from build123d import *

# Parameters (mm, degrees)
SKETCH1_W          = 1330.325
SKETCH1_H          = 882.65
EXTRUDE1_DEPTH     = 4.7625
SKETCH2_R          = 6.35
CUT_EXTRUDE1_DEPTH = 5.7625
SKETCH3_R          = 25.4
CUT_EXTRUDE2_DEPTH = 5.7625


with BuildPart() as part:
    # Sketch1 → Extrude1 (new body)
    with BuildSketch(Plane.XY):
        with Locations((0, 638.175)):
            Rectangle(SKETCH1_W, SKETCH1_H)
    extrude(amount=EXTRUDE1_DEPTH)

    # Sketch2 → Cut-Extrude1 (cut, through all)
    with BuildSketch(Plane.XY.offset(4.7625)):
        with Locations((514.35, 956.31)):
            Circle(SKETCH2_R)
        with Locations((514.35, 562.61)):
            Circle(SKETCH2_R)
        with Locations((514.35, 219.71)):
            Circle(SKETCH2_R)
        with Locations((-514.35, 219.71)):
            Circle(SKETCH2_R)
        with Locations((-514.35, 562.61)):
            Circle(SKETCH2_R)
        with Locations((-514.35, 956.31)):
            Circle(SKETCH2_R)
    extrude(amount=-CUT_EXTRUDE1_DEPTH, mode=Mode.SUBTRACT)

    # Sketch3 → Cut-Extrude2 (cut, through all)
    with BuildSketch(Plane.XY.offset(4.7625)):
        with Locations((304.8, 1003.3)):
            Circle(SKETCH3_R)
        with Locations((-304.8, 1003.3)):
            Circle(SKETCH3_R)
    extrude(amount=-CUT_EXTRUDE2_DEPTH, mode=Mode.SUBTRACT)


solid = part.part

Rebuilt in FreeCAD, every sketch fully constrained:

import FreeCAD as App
import Part
import Sketcher
from FreeCAD import Vector
Q = App.Units.Quantity


def add_polygon(sketch, points):
    """Adds a closed chain of lines whose ends are joined by coincident constraints."""
    first, n = sketch.GeometryCount, len(points)
    for a, b in zip(points, points[1:] + points[:1]):
        sketch.addGeometry(Part.LineSegment(App.Vector(*a, 0), App.Vector(*b, 0)), False)
    for i in range(n):
        sketch.addConstraint(Sketcher.Constraint("Coincident", first + i, 2, first + (i + 1) % n, 1))

doc = App.newDocument("Part")
params = doc.addObject("Spreadsheet::Sheet", "Params")
for row, (alias, value) in enumerate([
    ("sketch1_height", "34.75 in"),
    ("sketch1_width", "52.375 in"),
    ("pad1_length", "0.1875 in"),
    ("sketch2_diameter", "0.5 in"),
    ("sketch3_diameter", "2 in"),
], start=1):
    params.set(f"A{row}", alias)
    params.set(f"B{row}", "=" + value)
    params.setAlias(f"B{row}", alias)

body = doc.addObject("PartDesign::Body", "Body")

sketch1 = body.newObject("Sketcher::SketchObject", "Sketch")
sketch1.AttachmentSupport = (doc.getObject("XY_Plane"), [""])
sketch1.MapMode = "FlatFace"
add_polygon(sketch1, [(-665.1625, 1079.5), (-665.1625, 196.85), (665.1625, 196.85), (665.1625, 1079.5)])
sketch1.addConstraint([
    Sketcher.Constraint("Vertical", 0),
    Sketcher.Constraint("Horizontal", 1),
    Sketcher.Constraint("Vertical", 2),
    Sketcher.Constraint("Horizontal", 3),
    Sketcher.Constraint("DistanceY", 0, 2, 0, 1, Q("34.75 in")),
    Sketcher.Constraint("DistanceY", -1, 1, 2, 2, Q("42.5 in")),
    Sketcher.Constraint("DistanceX", 1, 1, 1, 2, Q("52.375 in")),
    Sketcher.Constraint("DistanceX", 0, 2, -1, 1, Q("26.1875 in")),
])
sketch1.setExpression("Constraints[8]", "Params.sketch1_height")
sketch1.setExpression("Constraints[10]", "Params.sketch1_width")
pad1 = body.newObject("PartDesign::Pad", "Pad")
pad1.Profile = sketch1
pad1.setExpression("Length", "Params.pad1_length")

sketch2 = body.newObject("Sketcher::SketchObject", "Sketch001")
sketch2.AttachmentSupport = (doc.getObject("XY_Plane"), [""])
sketch2.MapMode = "FlatFace"
sketch2.AttachmentOffset = App.Placement(Vector(0, 0, 0.1875 * 25.4), App.Rotation())
sketch2.addGeometry([
    Part.Circle(Vector(514.35, 956.31, 0), Vector(0, 0, 1), 6.35),
    Part.Circle(Vector(514.35, 562.61, 0), Vector(0, 0, 1), 6.35),
    Part.Circle(Vector(514.35, 219.71, 0), Vector(0, 0, 1), 6.35),
    Part.Circle(Vector(-514.35, 219.71, 0), Vector(0, 0, 1), 6.35),
    Part.Circle(Vector(-514.35, 562.61, 0), Vector(0, 0, 1), 6.35),
    Part.Circle(Vector(-514.35, 956.31, 0), Vector(0, 0, 1), 6.35),
], False)
sketch2.addConstraint([
    Sketcher.Constraint("Equal", 0, 1),
    Sketcher.Constraint("Equal", 1, 2),
    Sketcher.Constraint("Equal", 2, 3),
    Sketcher.Constraint("Equal", 3, 4),
    Sketcher.Constraint("Equal", 4, 5),
    Sketcher.Constraint("Symmetric", 2, 3, 3, 3, -2),
    Sketcher.Constraint("Symmetric", 1, 3, 4, 3, -2),
    Sketcher.Constraint("Symmetric", 0, 3, 5, 3, -2),
    Sketcher.Constraint("Vertical", 0, 3, 1, 3),
    Sketcher.Constraint("Vertical", 1, 3, 2, 3),
    Sketcher.Constraint("Diameter", 0, Q("0.5 in")),
    Sketcher.Constraint("DistanceY", 2, 3, 0, 3, Q("29 in")),
    Sketcher.Constraint("DistanceY", 1, 3, 0, 3, Q("15.5 in")),
    Sketcher.Constraint("DistanceX", 3, 3, 2, 3, Q("40.5 in")),
    Sketcher.Constraint("DistanceY", -1, 1, 0, 3, Q("37.65 in")),
])
sketch2.setExpression("Constraints[10]", "Params.sketch2_diameter")
pocket1 = body.newObject("PartDesign::Pocket", "Pocket")
pocket1.Profile = sketch2
pocket1.Type = "ThroughAll"

sketch3 = body.newObject("Sketcher::SketchObject", "Sketch002")
sketch3.AttachmentSupport = (doc.getObject("XY_Plane"), [""])
sketch3.MapMode = "FlatFace"
sketch3.AttachmentOffset = App.Placement(Vector(0, 0, 0.1875 * 25.4), App.Rotation())
sketch3.addGeometry([
    Part.Circle(Vector(304.8, 1003.3, 0), Vector(0, 0, 1), 25.4),
    Part.Circle(Vector(-304.8, 1003.3, 0), Vector(0, 0, 1), 25.4),
], False)
sketch3.addConstraint([
    Sketcher.Constraint("Equal", 0, 1),
    Sketcher.Constraint("Symmetric", 0, 3, 1, 3, -2),
    Sketcher.Constraint("Diameter", 0, Q("2 in")),
    Sketcher.Constraint("DistanceX", -1, 1, 0, 3, Q("12 in")),
    Sketcher.Constraint("DistanceY", -1, 1, 0, 3, Q("39.5 in")),
])
sketch3.setExpression("Constraints[2]", "Params.sketch3_diameter")
pocket2 = body.newObject("PartDesign::Pocket", "Pocket001")
pocket2.Profile = sketch3
pocket2.Type = "ThroughAll"

doc.recompute()
